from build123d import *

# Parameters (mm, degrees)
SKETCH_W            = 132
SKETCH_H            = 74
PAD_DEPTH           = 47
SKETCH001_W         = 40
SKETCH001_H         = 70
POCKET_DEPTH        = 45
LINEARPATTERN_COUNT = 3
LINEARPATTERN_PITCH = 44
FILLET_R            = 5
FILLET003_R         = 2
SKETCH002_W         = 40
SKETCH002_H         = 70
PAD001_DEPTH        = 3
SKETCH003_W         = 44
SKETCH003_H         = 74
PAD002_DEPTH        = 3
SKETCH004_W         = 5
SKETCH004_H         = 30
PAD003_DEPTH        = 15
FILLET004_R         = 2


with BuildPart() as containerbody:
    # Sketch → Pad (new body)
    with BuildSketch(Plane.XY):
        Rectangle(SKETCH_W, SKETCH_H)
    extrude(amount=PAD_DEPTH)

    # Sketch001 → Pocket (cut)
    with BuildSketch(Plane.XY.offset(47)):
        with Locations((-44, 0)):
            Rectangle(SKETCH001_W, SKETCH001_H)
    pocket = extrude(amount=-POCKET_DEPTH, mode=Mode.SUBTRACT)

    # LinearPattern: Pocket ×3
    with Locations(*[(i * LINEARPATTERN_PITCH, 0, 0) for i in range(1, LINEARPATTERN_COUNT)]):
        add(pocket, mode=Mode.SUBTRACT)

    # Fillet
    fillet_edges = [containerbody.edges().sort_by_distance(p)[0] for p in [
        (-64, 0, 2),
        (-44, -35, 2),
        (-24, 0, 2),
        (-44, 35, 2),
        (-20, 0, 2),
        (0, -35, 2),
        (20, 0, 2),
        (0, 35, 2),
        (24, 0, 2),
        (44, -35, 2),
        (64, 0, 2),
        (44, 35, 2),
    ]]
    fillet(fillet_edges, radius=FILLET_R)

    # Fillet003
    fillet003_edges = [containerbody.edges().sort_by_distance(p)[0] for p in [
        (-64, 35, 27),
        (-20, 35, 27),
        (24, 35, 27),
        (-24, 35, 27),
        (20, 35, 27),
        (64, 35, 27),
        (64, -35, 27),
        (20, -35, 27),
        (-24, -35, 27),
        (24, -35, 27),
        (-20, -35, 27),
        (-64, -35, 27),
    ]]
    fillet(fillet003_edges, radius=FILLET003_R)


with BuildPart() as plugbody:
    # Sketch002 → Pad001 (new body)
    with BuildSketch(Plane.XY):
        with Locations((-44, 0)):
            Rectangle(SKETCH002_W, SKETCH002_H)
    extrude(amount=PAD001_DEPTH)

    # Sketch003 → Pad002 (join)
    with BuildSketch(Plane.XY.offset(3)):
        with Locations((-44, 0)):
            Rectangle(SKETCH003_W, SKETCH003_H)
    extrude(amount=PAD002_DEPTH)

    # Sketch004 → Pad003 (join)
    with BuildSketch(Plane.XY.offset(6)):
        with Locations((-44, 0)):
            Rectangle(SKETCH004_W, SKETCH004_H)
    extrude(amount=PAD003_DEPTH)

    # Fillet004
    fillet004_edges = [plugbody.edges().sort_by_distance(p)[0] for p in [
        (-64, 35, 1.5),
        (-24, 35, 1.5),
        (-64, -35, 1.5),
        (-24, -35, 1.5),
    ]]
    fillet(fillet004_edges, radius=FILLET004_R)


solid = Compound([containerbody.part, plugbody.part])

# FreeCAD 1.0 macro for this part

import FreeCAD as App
import Part
import Sketcher

V = App.Vector
Q = App.Units.Quantity


def edges_at(feature, points):
    """Names of the edges that pass closest to the given points."""
    edges = feature.Shape.Edges
    near = lambda p: min(range(len(edges)), key=lambda i: edges[i].distToShape(Part.Vertex(*p))[0])
    return sorted({f"Edge{near(p) + 1}" for p in points})

doc = App.newDocument("Part")
body = doc.addObject("PartDesign::Body", "Body")

# Sketch on XY plane
sketch1 = body.newObject("Sketcher::SketchObject", "Sketch")
sketch1.AttachmentSupport = (doc.getObject("XY_Plane"), [""])
sketch1.MapMode = "FlatFace"
sketch1.addGeometry([
    Part.LineSegment(V(-66, 37, 0), V(-66, -37, 0)),
    Part.LineSegment(V(-66, -37, 0), V(66, -37, 0)),
    Part.LineSegment(V(66, -37, 0), V(66, 37, 0)),
    Part.LineSegment(V(66, 37, 0), V(-66, 37, 0)),
], False)
sketch1.addConstraint([
    Sketcher.Constraint("Coincident", 0, 2, 1, 1),
    Sketcher.Constraint("Coincident", 1, 2, 2, 1),
    Sketcher.Constraint("Coincident", 2, 2, 3, 1),
    Sketcher.Constraint("Coincident", 3, 2, 0, 1),
    Sketcher.Constraint("Vertical", 0),
    Sketcher.Constraint("Horizontal", 1),
    Sketcher.Constraint("Vertical", 2),
    Sketcher.Constraint("Horizontal", 3),
    Sketcher.Constraint("Symmetric", 0, 2, 2, 2, -1, 1),
    Sketcher.Constraint("DistanceX", 1, 1, 1, 2, Q("132 mm")),
    Sketcher.Constraint("DistanceY", 0, 2, 0, 1, Q("74 mm")),
])
pad1 = body.newObject("PartDesign::Pad", "Pad")
pad1.Profile = sketch1
pad1.Length = 47

# Sketch on XY plane
sketch2 = body.newObject("Sketcher::SketchObject", "Sketch001")
sketch2.AttachmentSupport = (doc.getObject("XY_Plane"), [""])
sketch2.MapMode = "FlatFace"
sketch2.AttachmentOffset = App.Placement(V(0, 0, 47), App.Rotation())
sketch2.addGeometry([
    Part.LineSegment(V(-64, 35, 0), V(-64, -35, 0)),
    Part.LineSegment(V(-64, -35, 0), V(-24, -35, 0)),
    Part.LineSegment(V(-24, -35, 0), V(-24, 35, 0)),
    Part.LineSegment(V(-24, 35, 0), V(-64, 35, 0)),
], False)
sketch2.addConstraint([
    Sketcher.Constraint("Coincident", 0, 2, 1, 1),
    Sketcher.Constraint("Coincident", 1, 2, 2, 1),
    Sketcher.Constraint("Coincident", 2, 2, 3, 1),
    Sketcher.Constraint("Coincident", 3, 2, 0, 1),
    Sketcher.Constraint("Vertical", 0),
    Sketcher.Constraint("Horizontal", 1),
    Sketcher.Constraint("Vertical", 2),
    Sketcher.Constraint("Horizontal", 3),
    Sketcher.Constraint("DistanceX", 1, 1, 1, 2, Q("40 mm")),
    Sketcher.Constraint("DistanceY", 0, 2, 0, 1, Q("70 mm")),
    Sketcher.Constraint("DistanceX", 0, 2, -1, 1, Q("64 mm")),
    Sketcher.Constraint("DistanceY", 0, 2, -1, 1, Q("35 mm")),
])
pocket1 = body.newObject("PartDesign::Pocket", "Pocket")
pocket1.Profile = sketch2
pocket1.Length = 45
doc.recompute()

linearpattern = body.newObject("PartDesign::LinearPattern", "LinearPattern")
linearpattern.Originals = [pocket1]
linearpattern.Direction = (doc.getObject("X_Axis"), [""])
linearpattern.Mode = "offset"
linearpattern.Offset = 44
linearpattern.Occurrences = 3
body.Tip = linearpattern
doc.recompute()

fillet = body.newObject("PartDesign::Fillet", "Fillet")
fillet.Base = (linearpattern, edges_at(linearpattern, [
    (-64, 0, 2),
    (-44, -35, 2),
    (-24, 0, 2),
    (-44, 35, 2),
    (-20, 0, 2),
    (0, -35, 2),
    (20, 0, 2),
    (0, 35, 2),
    (24, 0, 2),
    (44, -35, 2),
    (64, 0, 2),
    (44, 35, 2),
]))
fillet.Radius = 5
doc.recompute()

fillet2 = body.newObject("PartDesign::Fillet", "Fillet001")
fillet2.Base = (fillet, edges_at(fillet, [
    (-64, 35, 27),
    (-20, 35, 27),
    (24, 35, 27),
    (-24, 35, 27),
    (20, 35, 27),
    (64, 35, 27),
    (64, -35, 27),
    (20, -35, 27),
    (-24, -35, 27),
    (24, -35, 27),
    (-20, -35, 27),
    (-64, -35, 27),
]))
fillet2.Radius = 2
body2 = doc.addObject("PartDesign::Body", "Body001")

# Sketch on XY plane
sketch3 = body2.newObject("Sketcher::SketchObject", "Sketch002")
sketch3.AttachmentSupport = (doc.getObject("XY_Plane001"), [""])
sketch3.MapMode = "FlatFace"
sketch3.addGeometry([
    Part.LineSegment(V(-64, 35, 0), V(-64, -35, 0)),
    Part.LineSegment(V(-64, -35, 0), V(-24, -35, 0)),
    Part.LineSegment(V(-24, -35, 0), V(-24, 35, 0)),
    Part.LineSegment(V(-24, 35, 0), V(-64, 35, 0)),
], False)
sketch3.addConstraint([
    Sketcher.Constraint("Coincident", 0, 2, 1, 1),
    Sketcher.Constraint("Coincident", 1, 2, 2, 1),
    Sketcher.Constraint("Coincident", 2, 2, 3, 1),
    Sketcher.Constraint("Coincident", 3, 2, 0, 1),
    Sketcher.Constraint("Vertical", 0),
    Sketcher.Constraint("Horizontal", 1),
    Sketcher.Constraint("Vertical", 2),
    Sketcher.Constraint("Horizontal", 3),
    Sketcher.Constraint("DistanceX", 1, 1, 1, 2, Q("40 mm")),
    Sketcher.Constraint("DistanceY", 0, 2, 0, 1, Q("70 mm")),
    Sketcher.Constraint("DistanceX", 0, 2, -1, 1, Q("64 mm")),
    Sketcher.Constraint("DistanceY", 0, 2, -1, 1, Q("35 mm")),
])
pad2 = body2.newObject("PartDesign::Pad", "Pad001")
pad2.Profile = sketch3
pad2.Length = 3

# Sketch on XY plane
sketch4 = body2.newObject("Sketcher::SketchObject", "Sketch003")
sketch4.AttachmentSupport = (doc.getObject("XY_Plane001"), [""])
sketch4.MapMode = "FlatFace"
sketch4.AttachmentOffset = App.Placement(V(0, 0, 3), App.Rotation())
sketch4.addGeometry([
    Part.LineSegment(V(-66, 37, 0), V(-66, -37, 0)),
    Part.LineSegment(V(-66, -37, 0), V(-22, -37, 0)),
    Part.LineSegment(V(-22, -37, 0), V(-22, 37, 0)),
    Part.LineSegment(V(-22, 37, 0), V(-66, 37, 0)),
], False)
sketch4.addConstraint([
    Sketcher.Constraint("Coincident", 0, 2, 1, 1),
    Sketcher.Constraint("Coincident", 1, 2, 2, 1),
    Sketcher.Constraint("Coincident", 2, 2, 3, 1),
    Sketcher.Constraint("Coincident", 3, 2, 0, 1),
    Sketcher.Constraint("Vertical", 0),
    Sketcher.Constraint("Horizontal", 1),
    Sketcher.Constraint("Vertical", 2),
    Sketcher.Constraint("Horizontal", 3),
    Sketcher.Constraint("DistanceX", 1, 1, 1, 2, Q("44 mm")),
    Sketcher.Constraint("DistanceY", 0, 2, 0, 1, Q("74 mm")),
    Sketcher.Constraint("DistanceX", 0, 2, -1, 1, Q("66 mm")),
    Sketcher.Constraint("DistanceY", 0, 2, -1, 1, Q("37 mm")),
])
pad3 = body2.newObject("PartDesign::Pad", "Pad002")
pad3.Profile = sketch4
pad3.Length = 3

# Sketch on XY plane
sketch5 = body2.newObject("Sketcher::SketchObject", "Sketch004")
sketch5.AttachmentSupport = (doc.getObject("XY_Plane001"), [""])
sketch5.MapMode = "FlatFace"
sketch5.AttachmentOffset = App.Placement(V(0, 0, 6), App.Rotation())
sketch5.addGeometry([
    Part.LineSegment(V(-46, 15, 0), V(-46, -15, 0)),
    Part.LineSegment(V(-46, -15, 0), V(-42, -15, 0)),
    Part.LineSegment(V(-42, -15, 0), V(-42, 15, 0)),
    Part.LineSegment(V(-42, 15, 0), V(-46, 15, 0)),
], False)
sketch5.addConstraint([
    Sketcher.Constraint("Coincident", 0, 2, 1, 1),
    Sketcher.Constraint("Coincident", 1, 2, 2, 1),
    Sketcher.Constraint("Coincident", 2, 2, 3, 1),
    Sketcher.Constraint("Coincident", 3, 2, 0, 1),
    Sketcher.Constraint("Vertical", 0),
    Sketcher.Constraint("Horizontal", 1),
    Sketcher.Constraint("Vertical", 2),
    Sketcher.Constraint("Horizontal", 3),
    Sketcher.Constraint("DistanceX", 1, 1, 1, 2, Q("5 mm")),
    Sketcher.Constraint("DistanceY", 0, 2, 0, 1, Q("30 mm")),
    Sketcher.Constraint("DistanceY", 0, 2, -1, 1, Q("15 mm")),
    Sketcher.Constraint("DistanceX", 0, 2, -1, 1, Q("46.5 mm")),
])
pad4 = body2.newObject("PartDesign::Pad", "Pad003")
pad4.Profile = sketch5
pad4.Length = 15
doc.recompute()

fillet3 = body2.newObject("PartDesign::Fillet", "Fillet002")
fillet3.Base = (pad4, edges_at(pad4, [
    (-64, 35, 1.5),
    (-24, 35, 1.5),
    (-64, -35, 1.5),
    (-24, -35, 1.5),
]))
fillet3.Radius = 2

doc.recompute()
